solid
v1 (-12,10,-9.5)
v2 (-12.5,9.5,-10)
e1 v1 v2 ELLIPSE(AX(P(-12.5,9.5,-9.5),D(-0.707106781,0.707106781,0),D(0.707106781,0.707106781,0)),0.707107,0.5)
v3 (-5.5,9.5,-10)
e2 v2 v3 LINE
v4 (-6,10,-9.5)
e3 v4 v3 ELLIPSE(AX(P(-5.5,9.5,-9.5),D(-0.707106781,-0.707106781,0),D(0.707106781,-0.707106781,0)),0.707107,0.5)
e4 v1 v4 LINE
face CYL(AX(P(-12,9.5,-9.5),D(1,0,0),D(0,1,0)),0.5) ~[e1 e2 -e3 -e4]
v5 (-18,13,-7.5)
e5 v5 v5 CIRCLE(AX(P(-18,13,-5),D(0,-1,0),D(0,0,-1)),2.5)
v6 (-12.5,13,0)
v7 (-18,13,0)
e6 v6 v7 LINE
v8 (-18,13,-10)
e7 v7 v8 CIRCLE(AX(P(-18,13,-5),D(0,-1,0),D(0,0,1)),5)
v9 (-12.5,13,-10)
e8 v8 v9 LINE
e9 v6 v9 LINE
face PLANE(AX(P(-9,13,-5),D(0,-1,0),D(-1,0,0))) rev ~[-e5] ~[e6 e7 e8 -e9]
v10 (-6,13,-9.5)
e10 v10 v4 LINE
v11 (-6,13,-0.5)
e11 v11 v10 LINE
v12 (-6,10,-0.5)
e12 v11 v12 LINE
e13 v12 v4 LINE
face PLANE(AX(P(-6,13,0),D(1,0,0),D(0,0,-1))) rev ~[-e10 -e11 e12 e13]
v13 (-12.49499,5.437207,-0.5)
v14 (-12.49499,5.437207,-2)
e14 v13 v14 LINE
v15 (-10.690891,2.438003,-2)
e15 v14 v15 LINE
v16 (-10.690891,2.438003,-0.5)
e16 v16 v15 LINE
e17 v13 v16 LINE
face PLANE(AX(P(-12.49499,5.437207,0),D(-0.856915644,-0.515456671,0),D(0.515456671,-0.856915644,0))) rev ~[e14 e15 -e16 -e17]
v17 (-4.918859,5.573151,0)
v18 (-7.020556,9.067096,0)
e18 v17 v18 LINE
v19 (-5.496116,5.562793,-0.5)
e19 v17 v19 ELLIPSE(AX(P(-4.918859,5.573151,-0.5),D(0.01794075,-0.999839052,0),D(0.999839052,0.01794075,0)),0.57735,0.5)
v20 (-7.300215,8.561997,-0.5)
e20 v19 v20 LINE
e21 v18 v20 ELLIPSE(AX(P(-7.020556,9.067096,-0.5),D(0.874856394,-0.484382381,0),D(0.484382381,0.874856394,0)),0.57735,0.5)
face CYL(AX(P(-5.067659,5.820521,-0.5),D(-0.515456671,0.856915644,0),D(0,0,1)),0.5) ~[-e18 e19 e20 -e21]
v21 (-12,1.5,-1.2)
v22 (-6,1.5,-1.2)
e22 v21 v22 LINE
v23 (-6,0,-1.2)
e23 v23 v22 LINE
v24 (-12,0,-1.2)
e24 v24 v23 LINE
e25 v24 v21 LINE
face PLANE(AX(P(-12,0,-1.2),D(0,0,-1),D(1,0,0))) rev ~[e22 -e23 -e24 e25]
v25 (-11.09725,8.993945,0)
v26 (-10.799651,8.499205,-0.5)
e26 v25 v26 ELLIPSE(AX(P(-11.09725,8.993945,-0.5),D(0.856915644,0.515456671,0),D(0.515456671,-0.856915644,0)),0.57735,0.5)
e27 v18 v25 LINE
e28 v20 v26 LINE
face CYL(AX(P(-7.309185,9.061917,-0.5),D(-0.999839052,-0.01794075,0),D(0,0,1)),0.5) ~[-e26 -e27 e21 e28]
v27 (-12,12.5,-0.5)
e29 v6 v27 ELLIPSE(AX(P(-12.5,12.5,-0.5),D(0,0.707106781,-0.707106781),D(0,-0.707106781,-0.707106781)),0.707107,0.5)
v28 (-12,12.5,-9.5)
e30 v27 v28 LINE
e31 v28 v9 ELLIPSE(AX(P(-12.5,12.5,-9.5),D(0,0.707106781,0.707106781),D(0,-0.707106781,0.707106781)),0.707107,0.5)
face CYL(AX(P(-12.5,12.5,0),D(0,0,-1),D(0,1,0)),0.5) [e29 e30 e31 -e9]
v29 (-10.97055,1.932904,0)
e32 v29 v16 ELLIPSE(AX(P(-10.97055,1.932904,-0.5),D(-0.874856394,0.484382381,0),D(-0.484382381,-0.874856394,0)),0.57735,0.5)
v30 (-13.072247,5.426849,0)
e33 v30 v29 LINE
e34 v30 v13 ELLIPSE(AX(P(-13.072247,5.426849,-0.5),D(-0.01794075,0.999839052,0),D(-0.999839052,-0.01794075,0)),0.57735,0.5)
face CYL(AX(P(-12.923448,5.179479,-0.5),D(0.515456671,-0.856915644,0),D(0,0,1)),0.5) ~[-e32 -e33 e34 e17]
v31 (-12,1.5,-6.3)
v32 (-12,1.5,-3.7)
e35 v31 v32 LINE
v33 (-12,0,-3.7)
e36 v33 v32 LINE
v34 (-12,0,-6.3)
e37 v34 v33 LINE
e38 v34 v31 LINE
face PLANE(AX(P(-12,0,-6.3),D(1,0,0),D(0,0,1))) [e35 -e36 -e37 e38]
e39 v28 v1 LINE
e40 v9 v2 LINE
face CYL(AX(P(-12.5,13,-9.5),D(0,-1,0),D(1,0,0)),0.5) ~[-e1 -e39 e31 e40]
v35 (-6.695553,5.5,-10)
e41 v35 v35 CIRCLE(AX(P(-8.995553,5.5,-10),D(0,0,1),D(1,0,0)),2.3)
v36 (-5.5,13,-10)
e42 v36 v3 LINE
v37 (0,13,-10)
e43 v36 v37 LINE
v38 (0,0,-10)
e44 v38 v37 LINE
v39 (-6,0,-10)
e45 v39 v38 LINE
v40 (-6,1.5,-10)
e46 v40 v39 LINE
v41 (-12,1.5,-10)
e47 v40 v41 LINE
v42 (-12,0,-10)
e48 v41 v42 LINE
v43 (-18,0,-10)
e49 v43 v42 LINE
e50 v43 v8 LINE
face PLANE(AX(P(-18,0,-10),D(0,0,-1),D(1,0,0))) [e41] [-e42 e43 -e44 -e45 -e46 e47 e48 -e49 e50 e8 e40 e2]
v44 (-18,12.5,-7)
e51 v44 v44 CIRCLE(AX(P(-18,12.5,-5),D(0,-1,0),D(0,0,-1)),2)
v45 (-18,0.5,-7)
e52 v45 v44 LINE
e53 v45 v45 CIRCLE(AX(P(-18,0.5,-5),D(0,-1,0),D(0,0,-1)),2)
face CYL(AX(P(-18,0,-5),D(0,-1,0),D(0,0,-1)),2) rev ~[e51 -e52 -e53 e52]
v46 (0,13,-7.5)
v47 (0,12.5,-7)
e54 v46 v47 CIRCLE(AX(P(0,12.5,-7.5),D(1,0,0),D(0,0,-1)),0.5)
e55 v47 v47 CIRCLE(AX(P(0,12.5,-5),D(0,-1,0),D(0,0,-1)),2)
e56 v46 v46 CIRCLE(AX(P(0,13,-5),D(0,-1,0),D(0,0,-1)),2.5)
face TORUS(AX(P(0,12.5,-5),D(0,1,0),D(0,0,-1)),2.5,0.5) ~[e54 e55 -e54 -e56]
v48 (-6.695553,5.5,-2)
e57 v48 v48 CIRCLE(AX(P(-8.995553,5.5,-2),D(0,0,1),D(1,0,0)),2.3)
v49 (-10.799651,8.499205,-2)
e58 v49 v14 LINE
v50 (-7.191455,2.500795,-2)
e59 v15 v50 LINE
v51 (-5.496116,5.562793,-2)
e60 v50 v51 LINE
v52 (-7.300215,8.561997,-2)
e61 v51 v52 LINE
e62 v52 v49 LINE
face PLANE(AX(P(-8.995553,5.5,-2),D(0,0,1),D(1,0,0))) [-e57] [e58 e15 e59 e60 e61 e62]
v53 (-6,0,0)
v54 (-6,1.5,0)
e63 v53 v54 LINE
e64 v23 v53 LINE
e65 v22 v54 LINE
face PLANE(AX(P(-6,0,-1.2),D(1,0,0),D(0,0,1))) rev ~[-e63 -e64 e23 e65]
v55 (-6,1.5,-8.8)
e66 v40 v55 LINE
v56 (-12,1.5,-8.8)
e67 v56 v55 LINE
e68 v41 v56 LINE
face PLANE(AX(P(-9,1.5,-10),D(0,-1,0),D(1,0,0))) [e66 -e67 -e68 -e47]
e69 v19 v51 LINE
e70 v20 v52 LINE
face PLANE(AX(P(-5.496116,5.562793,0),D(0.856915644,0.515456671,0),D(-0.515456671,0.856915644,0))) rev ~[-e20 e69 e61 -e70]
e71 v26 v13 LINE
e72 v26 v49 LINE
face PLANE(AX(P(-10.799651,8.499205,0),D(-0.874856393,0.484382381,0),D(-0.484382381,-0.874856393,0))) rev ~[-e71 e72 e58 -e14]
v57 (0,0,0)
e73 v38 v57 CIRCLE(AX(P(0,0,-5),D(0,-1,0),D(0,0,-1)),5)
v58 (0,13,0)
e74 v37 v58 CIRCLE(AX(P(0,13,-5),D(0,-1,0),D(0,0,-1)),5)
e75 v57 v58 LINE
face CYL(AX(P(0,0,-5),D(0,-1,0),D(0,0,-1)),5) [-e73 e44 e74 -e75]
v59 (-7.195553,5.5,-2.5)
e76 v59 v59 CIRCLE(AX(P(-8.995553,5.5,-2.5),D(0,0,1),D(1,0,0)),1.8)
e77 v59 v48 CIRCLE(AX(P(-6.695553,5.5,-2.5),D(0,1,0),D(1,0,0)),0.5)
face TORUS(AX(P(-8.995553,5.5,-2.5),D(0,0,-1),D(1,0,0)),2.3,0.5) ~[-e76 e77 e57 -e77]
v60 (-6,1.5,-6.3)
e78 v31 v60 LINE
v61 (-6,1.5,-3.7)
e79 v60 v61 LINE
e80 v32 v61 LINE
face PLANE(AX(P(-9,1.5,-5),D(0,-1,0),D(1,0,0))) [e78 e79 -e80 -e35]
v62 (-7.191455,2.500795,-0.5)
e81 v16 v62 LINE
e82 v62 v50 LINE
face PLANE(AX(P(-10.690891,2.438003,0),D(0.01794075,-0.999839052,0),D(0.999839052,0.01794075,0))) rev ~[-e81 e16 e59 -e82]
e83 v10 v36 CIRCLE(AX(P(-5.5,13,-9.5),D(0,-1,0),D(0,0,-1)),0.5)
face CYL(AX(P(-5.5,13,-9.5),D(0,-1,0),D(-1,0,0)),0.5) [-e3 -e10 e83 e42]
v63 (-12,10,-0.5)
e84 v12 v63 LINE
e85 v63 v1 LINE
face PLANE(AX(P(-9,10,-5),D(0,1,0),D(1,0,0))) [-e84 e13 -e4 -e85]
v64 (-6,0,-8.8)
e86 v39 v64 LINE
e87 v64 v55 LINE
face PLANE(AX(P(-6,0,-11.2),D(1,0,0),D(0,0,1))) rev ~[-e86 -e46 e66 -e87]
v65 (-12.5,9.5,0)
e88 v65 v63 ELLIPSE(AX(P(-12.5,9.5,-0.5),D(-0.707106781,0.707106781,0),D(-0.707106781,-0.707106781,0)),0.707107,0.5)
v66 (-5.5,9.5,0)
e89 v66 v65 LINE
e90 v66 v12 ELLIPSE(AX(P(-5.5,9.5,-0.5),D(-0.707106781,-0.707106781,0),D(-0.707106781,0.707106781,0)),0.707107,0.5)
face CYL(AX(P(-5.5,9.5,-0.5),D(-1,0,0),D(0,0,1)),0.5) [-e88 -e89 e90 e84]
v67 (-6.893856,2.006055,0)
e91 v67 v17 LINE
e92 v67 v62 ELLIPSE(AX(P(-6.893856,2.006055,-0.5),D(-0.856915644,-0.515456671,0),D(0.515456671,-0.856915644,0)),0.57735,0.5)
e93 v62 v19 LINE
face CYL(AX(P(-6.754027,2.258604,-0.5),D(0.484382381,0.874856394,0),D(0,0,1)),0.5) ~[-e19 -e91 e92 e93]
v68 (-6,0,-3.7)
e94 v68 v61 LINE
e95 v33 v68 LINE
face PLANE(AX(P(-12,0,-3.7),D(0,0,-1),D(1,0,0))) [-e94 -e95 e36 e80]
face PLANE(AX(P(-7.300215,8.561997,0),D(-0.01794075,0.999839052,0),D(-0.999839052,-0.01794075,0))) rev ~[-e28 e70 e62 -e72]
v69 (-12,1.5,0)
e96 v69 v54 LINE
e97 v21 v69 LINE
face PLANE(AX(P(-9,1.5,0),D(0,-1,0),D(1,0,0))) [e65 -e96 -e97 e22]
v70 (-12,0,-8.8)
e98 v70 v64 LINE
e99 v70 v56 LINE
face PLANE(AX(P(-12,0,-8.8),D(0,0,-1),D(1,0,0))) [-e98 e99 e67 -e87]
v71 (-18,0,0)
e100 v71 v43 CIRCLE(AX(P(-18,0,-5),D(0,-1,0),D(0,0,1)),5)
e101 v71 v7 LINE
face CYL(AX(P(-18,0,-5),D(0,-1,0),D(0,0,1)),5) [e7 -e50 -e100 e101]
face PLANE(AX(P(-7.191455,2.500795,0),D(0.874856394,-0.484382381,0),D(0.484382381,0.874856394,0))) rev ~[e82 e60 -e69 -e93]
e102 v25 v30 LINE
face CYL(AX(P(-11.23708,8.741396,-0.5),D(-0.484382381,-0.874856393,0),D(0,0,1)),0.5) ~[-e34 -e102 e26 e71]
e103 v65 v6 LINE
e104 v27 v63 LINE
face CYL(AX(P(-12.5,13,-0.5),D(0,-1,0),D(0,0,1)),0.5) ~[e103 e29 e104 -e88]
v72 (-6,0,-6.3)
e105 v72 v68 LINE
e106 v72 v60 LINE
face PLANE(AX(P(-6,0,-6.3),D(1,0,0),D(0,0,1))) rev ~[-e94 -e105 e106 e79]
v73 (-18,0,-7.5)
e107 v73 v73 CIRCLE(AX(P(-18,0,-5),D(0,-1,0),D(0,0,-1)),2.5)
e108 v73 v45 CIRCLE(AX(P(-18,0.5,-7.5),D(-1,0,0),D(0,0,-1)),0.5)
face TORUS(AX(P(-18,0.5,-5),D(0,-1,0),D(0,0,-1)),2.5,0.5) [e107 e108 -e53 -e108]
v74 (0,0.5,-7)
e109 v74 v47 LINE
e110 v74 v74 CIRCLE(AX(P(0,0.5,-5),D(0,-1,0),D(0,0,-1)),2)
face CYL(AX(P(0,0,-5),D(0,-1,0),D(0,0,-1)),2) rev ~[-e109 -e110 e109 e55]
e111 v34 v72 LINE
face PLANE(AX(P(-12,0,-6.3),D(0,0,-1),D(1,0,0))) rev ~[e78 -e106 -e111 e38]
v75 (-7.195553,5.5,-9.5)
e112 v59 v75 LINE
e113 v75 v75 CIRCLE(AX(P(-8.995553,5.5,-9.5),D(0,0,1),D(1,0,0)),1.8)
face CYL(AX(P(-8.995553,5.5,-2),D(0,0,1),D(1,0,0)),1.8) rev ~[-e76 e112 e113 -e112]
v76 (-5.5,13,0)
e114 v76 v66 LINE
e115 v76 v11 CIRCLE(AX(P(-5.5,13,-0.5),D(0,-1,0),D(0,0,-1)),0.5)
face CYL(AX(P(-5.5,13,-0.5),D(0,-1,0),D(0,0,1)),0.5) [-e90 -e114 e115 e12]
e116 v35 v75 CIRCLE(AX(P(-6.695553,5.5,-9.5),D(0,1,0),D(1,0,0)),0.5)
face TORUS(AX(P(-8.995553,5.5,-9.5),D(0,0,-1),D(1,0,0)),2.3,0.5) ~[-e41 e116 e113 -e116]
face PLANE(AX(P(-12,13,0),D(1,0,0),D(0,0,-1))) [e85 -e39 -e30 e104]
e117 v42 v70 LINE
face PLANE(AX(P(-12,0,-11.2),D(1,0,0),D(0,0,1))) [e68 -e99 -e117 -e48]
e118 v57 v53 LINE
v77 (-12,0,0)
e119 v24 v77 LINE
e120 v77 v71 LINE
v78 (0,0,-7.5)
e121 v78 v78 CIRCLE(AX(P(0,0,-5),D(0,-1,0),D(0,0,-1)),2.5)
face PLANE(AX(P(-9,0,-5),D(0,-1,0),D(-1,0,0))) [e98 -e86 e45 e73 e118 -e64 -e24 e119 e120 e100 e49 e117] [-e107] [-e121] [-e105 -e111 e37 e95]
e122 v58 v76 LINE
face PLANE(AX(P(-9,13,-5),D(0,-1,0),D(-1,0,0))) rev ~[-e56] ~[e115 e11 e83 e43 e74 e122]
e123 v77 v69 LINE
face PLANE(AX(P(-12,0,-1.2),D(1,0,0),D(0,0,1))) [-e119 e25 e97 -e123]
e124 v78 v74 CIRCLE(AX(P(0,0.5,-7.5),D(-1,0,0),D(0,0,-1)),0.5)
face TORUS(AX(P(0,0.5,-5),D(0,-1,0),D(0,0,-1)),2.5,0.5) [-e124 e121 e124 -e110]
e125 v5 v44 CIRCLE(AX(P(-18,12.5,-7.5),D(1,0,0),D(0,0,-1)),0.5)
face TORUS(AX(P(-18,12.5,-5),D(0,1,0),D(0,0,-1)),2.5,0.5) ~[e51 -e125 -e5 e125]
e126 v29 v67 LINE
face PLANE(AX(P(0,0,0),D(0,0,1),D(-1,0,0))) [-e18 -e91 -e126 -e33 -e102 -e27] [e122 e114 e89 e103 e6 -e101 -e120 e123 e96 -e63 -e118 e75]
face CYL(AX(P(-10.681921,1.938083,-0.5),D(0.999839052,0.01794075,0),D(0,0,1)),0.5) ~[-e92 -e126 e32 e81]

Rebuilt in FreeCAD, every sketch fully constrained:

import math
import FreeCAD as App
import Part
import Sketcher

V = App.Vector


def edges_at(feature, points):
    """Names of the edges that pass closest to the given points."""
    edges = feature.Shape.Edges
    near = lambda p: min(range(len(edges)), key=lambda i: edges[i].distToShape(Part.Vertex(*p))[0])
    return sorted({f"Edge{near(p) + 1}" for p in points})


def add_polygon(sketch, points):
    """Adds a closed chain of lines whose ends are joined by coincident constraints."""
    first, n = sketch.GeometryCount, len(points)
    for a, b in zip(points, points[1:] + points[:1]):
        sketch.addGeometry(Part.LineSegment(App.Vector(*a, 0), App.Vector(*b, 0)), False)
    for i in range(n):
        sketch.addConstraint(Sketcher.Constraint("Coincident", first + i, 2, first + (i + 1) % n, 1))

doc = App.newDocument("Part")
params = doc.addObject("Spreadsheet::Sheet", "Params")
for row, (alias, value) in enumerate([
    ("sketch1_radius", "5 mm"),
    ("sketch1_width", "18 mm"),
    ("pad1_length", "13 mm"),
    ("sketch2_diameter", "4 mm"),
    ("pocket1_length", "13 mm"),
    ("fillet_radius", "0.5 mm"),
    ("sketch3_width", "6 mm"),
    ("sketch3_height", "10 mm"),
    ("pocket2_length", "3 mm"),
    ("sketch4_length", "3.5 mm"),
    ("pocket3_length", "2 mm"),
    ("sketch5_diameter", "3.6 mm"),
    ("pocket4_length", "8 mm"),
    ("fillet2_radius", "0.5 mm"),
    ("fillet3_radius", "0.5 mm"),
    ("fillet4_radius", "0.5 mm"),
    ("fillet5_radius", "0.5 mm"),
    ("sketch6_width", "6 mm"),
    ("sketch6_height", "2.4 mm"),
    ("sketch6_height2", "2.6 mm"),
    ("pocket5_length", "1.5 mm"),
], start=1):
    params.set(f"A{row}", alias)
    params.set(f"B{row}", "=" + value)
    params.setAlias(f"B{row}", alias)

body = doc.addObject("PartDesign::Body", "Body")

# Sketch on XZ plane
sketch1 = doc.addObject("Sketcher::SketchObject", "Sketch")
body.addObject(sketch1)
sketch1.AttachmentSupport = (doc.XZ_Plane, [""])
sketch1.MapMode = "FlatFace"
sketch1.addGeometry([
    Part.LineSegment(V(0, -10, 0), V(-18, -10, 0)),
    Part.ArcOfCircle(Part.Circle(V(-18, -5, 0), V(0, 0, 1), 5), math.radians(90), math.radians(270)),
    Part.LineSegment(V(-18, 0, 0), V(0, 0, 0)),
    Part.ArcOfCircle(Part.Circle(V(0, -5, 0), V(0, 0, 1), 5), math.radians(-90), math.radians(90)),
], False)
sketch1.addConstraint([
    Sketcher.Constraint("Tangent", 0, 2, 1, 2),
    Sketcher.Constraint("Tangent", 1, 1, 2, 1),
    Sketcher.Constraint("Tangent", 2, 2, 3, 2),
    Sketcher.Constraint("Tangent", 3, 1, 0, 1),
    Sketcher.Constraint("Horizontal", 0),
    Sketcher.Constraint("Horizontal", 2),
    Sketcher.Constraint("Coincident", 2, 2, -1, 1),
    Sketcher.Constraint("Radius", 1, 5.0),
    Sketcher.Constraint("DistanceX", 0, 2, 0, 1, 18.0),
])
sketch1.setExpression("Constraints[7]", "Params.sketch1_radius")
sketch1.setExpression("Constraints[8]", "Params.sketch1_width")
pad1 = doc.addObject("PartDesign::Pad", "Pad")
body.addObject(pad1)
pad1.Profile = sketch1
pad1.setExpression("Length", "Params.pad1_length")
pad1.Reversed = True

# Sketch on XZ plane
sketch2 = doc.addObject("Sketcher::SketchObject", "Sketch001")
body.addObject(sketch2)
sketch2.AttachmentSupport = (doc.XZ_Plane, [""])
sketch2.MapMode = "FlatFace"
sketch2.addGeometry([
    Part.Circle(V(0, -5, 0), V(0, 0, 1), 2),
    Part.Circle(V(-18, -5, 0), V(0, 0, 1), 2),
], False)
sketch2.addConstraint([
    Sketcher.Constraint("Equal", 0, 1),
    Sketcher.Constraint("PointOnObject", 0, 3, -2),
    Sketcher.Constraint("Horizontal", 0, 3, 1, 3),
    Sketcher.Constraint("Diameter", 0, 4.0),
    Sketcher.Constraint("DistanceY", 0, 3, -1, 1, 5.0),
    Sketcher.Constraint("DistanceX", 1, 3, -1, 1, 18.0),
])
sketch2.setExpression("Constraints[3]", "Params.sketch2_diameter")
pocket1 = doc.addObject("PartDesign::Pocket", "Pocket")
body.addObject(pocket1)
pocket1.Profile = sketch2
pocket1.setExpression("Length", "Params.pocket1_length")
doc.recompute()

fillet = doc.addObject("PartDesign::Fillet", "Fillet")
body.addObject(fillet)
fillet.Base = (pocket1, edges_at(pocket1, [
    (0, 0, -3),
    (0, 13, -3),
    (-18, 0, -3),
    (-18, 13, -3),
]))
fillet.setExpression("Radius", "Params.fillet_radius")

# Sketch on XZ plane
sketch3 = doc.addObject("Sketcher::SketchObject", "Sketch002")
body.addObject(sketch3)
sketch3.AttachmentSupport = (doc.XZ_Plane, [""])
sketch3.MapMode = "FlatFace"
sketch3.AttachmentOffset = App.Placement(V(0, 0, -13), App.Rotation())
add_polygon(sketch3, [(-12, -10), (-12, 0), (-6, 0), (-6, -10)])  # lines 0-3
sketch3.addConstraint([
    Sketcher.Constraint("Vertical", 0),
    Sketcher.Constraint("Horizontal", 1),
    Sketcher.Constraint("Vertical", 2),
    Sketcher.Constraint("Horizontal", 3),
    Sketcher.Constraint("PointOnObject", 0, 2, -1),
    Sketcher.Constraint("DistanceX", 1, 1, 1, 2, 6.0),
    Sketcher.Constraint("DistanceY", 0, 1, 0, 2, 10.0),
    Sketcher.Constraint("DistanceX", 0, 2, -1, 1, 12.0),
])
sketch3.setExpression("Constraints[9]", "Params.sketch3_width")
sketch3.setExpression("Constraints[10]", "Params.sketch3_height")
pocket2 = doc.addObject("PartDesign::Pocket", "Pocket001")
body.addObject(pocket2)
pocket2.Profile = sketch3
pocket2.setExpression("Length", "Params.pocket2_length")
pocket2.Reversed = True

# Sketch on XY plane
sketch4 = doc.addObject("Sketcher::SketchObject", "Sketch003")
body.addObject(sketch4)
sketch4.AttachmentSupport = (doc.XY_Plane, [""])
sketch4.MapMode = "FlatFace"
add_polygon(sketch4, [(-12.49499, 5.437207), (-10.690891, 2.438003), (-7.191455, 2.500795), (-5.496116, 5.562793), (-7.300215, 8.561997), (-10.799651, 8.499205)])  # lines 0-5
sketch4.addConstraint([
    Sketcher.Constraint("Parallel", 0, 3),
    Sketcher.Constraint("Parallel", 1, 4),
    Sketcher.Constraint("Parallel", 2, 5),
    Sketcher.Constraint("Equal", 0, 1),
    Sketcher.Constraint("Equal", 1, 2),
    Sketcher.Constraint("Equal", 2, 3),
    Sketcher.Constraint("Distance", 0, 3.5),
    Sketcher.Constraint("DistanceX", 3, 2, 2, 2, 1.804098),
    Sketcher.Constraint("DistanceX", 0, 2, -1, 1, 10.690891),
    Sketcher.Constraint("DistanceX", 4, 2, -1, 1, 10.799651),
    Sketcher.Constraint("DistanceY", 0, 2, 2, 2, 3.12479),
    Sketcher.Constraint("DistanceY", -1, 1, 0, 2, 2.438003),
])
sketch4.setExpression("Constraints[12]", "Params.sketch4_length")
pocket3 = doc.addObject("PartDesign::Pocket", "Pocket002")
body.addObject(pocket3)
pocket3.Profile = sketch4
pocket3.setExpression("Length", "Params.pocket3_length")

# Sketch on XY plane
sketch5 = doc.addObject("Sketcher::SketchObject", "Sketch004")
body.addObject(sketch5)
sketch5.AttachmentSupport = (doc.XY_Plane, [""])
sketch5.MapMode = "FlatFace"
sketch5.AttachmentOffset = App.Placement(V(0, 0, -2), App.Rotation())
sketch5.addGeometry(Part.Circle(V(-8.995553, 5.5, 0), V(0, 0, 1), 1.8), False)
sketch5.addConstraint([
    Sketcher.Constraint("Diameter", 0, 3.6),
    Sketcher.Constraint("DistanceY", -1, 1, 0, 3, 5.5),
    Sketcher.Constraint("DistanceX", 0, 3, -1, 1, 8.995553),
])
sketch5.setExpression("Constraints[0]", "Params.sketch5_diameter")
pocket4 = doc.addObject("PartDesign::Pocket", "Pocket003")
body.addObject(pocket4)
pocket4.Profile = sketch5
pocket4.setExpression("Length", "Params.pocket4_length")
doc.recompute()

fillet2 = doc.addObject("PartDesign::Fillet", "Fillet001")
body.addObject(fillet2)
fillet2.Base = (pocket4, edges_at(pocket4, [(-10.796, 5.5, -2), (-10.796, 5.5, -10)]))
fillet2.setExpression("Radius", "Params.fillet2_radius")
doc.recompute()

fillet3 = doc.addObject("PartDesign::Fillet", "Fillet002")
body.addObject(fillet3)
fillet3.Base = (fillet2, edges_at(fillet2, [
    (-11.647, 6.968, 0),
    (-11.593, 3.938, 0),
    (-8.941, 2.469, 0),
    (-6.344, 4.032, 0),
    (-6.398, 7.062, 0),
    (-9.05, 8.531, 0),
]))
fillet3.setExpression("Radius", "Params.fillet3_radius")
doc.recompute()

fillet4 = doc.addObject("PartDesign::Fillet", "Fillet003")
body.addObject(fillet4)
fillet4.Base = (fillet3, edges_at(fillet3, [
    (-12, 11.5, 0),
    (-9, 10, -10),
    (-12, 11.5, -10),
    (-6, 11.5, -10),
    (-6, 11.5, 0),
    (-12, 13, -5),
]))
fillet4.setExpression("Radius", "Params.fillet4_radius")
doc.recompute()

fillet5 = doc.addObject("PartDesign::Fillet", "Fillet004")
body.addObject(fillet5)
fillet5.Base = (fillet4, edges_at(fillet4, [(-9, 10, 0)]))
fillet5.setExpression("Radius", "Params.fillet5_radius")

# Sketch on XZ plane
sketch6 = doc.addObject("Sketcher::SketchObject", "Sketch005")
body.addObject(sketch6)
sketch6.AttachmentSupport = (doc.XZ_Plane, [""])
sketch6.MapMode = "FlatFace"
add_polygon(sketch6, [(-12, 1.2), (-12, -1.2), (-6, -1.2), (-6, 1.2)])  # lines 0-3
add_polygon(sketch6, [(-12, -3.7), (-12, -6.3), (-6, -6.3), (-6, -3.7)])  # lines 4-7
add_polygon(sketch6, [(-12, -8.8), (-12, -11.2), (-6, -11.2), (-6, -8.8)])  # lines 8-11
sketch6.addConstraint([
    Sketcher.Constraint("Vertical", 0),
    Sketcher.Constraint("Horizontal", 1),
    Sketcher.Constraint("Vertical", 2),
    Sketcher.Constraint("Horizontal", 3),
    Sketcher.Constraint("Vertical", 4),
    Sketcher.Constraint("Horizontal", 5),
    Sketcher.Constraint("Vertical", 6),
    Sketcher.Constraint("Horizontal", 7),
    Sketcher.Constraint("Vertical", 8),
    Sketcher.Constraint("Horizontal", 9),
    Sketcher.Constraint("Vertical", 10),
    Sketcher.Constraint("Horizontal", 11),
    Sketcher.Constraint("Vertical", 3, 2, 4, 2),
    Sketcher.Constraint("Vertical", 2, 2, 5, 2),
    Sketcher.Constraint("Vertical", 7, 2, 8, 2),
    Sketcher.Constraint("Vertical", 6, 2, 9, 2),
    Sketcher.Constraint("Equal", 2, 8),
    Sketcher.Constraint("DistanceX", 1, 1, 1, 2, 6.0),
    Sketcher.Constraint("DistanceY", 0, 2, 0, 1, 2.4),
    Sketcher.Constraint("DistanceY", 4, 2, 4, 1, 2.6),
    Sketcher.Constraint("DistanceX", 0, 2, -1, 1, 12.0),
    Sketcher.Constraint("DistanceY", 8, 2, 0, 2, 10.0),
    Sketcher.Constraint("DistanceY", 0, 2, -1, 1, 1.2),
    Sketcher.Constraint("DistanceY", 4, 2, -1, 1, 6.3),
])
sketch6.setExpression("Constraints[29]", "Params.sketch6_width")
sketch6.setExpression("Constraints[30]", "Params.sketch6_height")
sketch6.setExpression("Constraints[31]", "Params.sketch6_height2")
pocket5 = doc.addObject("PartDesign::Pocket", "Pocket004")
body.addObject(pocket5)
pocket5.Profile = sketch6
pocket5.setExpression("Length", "Params.pocket5_length")

doc.recompute()
